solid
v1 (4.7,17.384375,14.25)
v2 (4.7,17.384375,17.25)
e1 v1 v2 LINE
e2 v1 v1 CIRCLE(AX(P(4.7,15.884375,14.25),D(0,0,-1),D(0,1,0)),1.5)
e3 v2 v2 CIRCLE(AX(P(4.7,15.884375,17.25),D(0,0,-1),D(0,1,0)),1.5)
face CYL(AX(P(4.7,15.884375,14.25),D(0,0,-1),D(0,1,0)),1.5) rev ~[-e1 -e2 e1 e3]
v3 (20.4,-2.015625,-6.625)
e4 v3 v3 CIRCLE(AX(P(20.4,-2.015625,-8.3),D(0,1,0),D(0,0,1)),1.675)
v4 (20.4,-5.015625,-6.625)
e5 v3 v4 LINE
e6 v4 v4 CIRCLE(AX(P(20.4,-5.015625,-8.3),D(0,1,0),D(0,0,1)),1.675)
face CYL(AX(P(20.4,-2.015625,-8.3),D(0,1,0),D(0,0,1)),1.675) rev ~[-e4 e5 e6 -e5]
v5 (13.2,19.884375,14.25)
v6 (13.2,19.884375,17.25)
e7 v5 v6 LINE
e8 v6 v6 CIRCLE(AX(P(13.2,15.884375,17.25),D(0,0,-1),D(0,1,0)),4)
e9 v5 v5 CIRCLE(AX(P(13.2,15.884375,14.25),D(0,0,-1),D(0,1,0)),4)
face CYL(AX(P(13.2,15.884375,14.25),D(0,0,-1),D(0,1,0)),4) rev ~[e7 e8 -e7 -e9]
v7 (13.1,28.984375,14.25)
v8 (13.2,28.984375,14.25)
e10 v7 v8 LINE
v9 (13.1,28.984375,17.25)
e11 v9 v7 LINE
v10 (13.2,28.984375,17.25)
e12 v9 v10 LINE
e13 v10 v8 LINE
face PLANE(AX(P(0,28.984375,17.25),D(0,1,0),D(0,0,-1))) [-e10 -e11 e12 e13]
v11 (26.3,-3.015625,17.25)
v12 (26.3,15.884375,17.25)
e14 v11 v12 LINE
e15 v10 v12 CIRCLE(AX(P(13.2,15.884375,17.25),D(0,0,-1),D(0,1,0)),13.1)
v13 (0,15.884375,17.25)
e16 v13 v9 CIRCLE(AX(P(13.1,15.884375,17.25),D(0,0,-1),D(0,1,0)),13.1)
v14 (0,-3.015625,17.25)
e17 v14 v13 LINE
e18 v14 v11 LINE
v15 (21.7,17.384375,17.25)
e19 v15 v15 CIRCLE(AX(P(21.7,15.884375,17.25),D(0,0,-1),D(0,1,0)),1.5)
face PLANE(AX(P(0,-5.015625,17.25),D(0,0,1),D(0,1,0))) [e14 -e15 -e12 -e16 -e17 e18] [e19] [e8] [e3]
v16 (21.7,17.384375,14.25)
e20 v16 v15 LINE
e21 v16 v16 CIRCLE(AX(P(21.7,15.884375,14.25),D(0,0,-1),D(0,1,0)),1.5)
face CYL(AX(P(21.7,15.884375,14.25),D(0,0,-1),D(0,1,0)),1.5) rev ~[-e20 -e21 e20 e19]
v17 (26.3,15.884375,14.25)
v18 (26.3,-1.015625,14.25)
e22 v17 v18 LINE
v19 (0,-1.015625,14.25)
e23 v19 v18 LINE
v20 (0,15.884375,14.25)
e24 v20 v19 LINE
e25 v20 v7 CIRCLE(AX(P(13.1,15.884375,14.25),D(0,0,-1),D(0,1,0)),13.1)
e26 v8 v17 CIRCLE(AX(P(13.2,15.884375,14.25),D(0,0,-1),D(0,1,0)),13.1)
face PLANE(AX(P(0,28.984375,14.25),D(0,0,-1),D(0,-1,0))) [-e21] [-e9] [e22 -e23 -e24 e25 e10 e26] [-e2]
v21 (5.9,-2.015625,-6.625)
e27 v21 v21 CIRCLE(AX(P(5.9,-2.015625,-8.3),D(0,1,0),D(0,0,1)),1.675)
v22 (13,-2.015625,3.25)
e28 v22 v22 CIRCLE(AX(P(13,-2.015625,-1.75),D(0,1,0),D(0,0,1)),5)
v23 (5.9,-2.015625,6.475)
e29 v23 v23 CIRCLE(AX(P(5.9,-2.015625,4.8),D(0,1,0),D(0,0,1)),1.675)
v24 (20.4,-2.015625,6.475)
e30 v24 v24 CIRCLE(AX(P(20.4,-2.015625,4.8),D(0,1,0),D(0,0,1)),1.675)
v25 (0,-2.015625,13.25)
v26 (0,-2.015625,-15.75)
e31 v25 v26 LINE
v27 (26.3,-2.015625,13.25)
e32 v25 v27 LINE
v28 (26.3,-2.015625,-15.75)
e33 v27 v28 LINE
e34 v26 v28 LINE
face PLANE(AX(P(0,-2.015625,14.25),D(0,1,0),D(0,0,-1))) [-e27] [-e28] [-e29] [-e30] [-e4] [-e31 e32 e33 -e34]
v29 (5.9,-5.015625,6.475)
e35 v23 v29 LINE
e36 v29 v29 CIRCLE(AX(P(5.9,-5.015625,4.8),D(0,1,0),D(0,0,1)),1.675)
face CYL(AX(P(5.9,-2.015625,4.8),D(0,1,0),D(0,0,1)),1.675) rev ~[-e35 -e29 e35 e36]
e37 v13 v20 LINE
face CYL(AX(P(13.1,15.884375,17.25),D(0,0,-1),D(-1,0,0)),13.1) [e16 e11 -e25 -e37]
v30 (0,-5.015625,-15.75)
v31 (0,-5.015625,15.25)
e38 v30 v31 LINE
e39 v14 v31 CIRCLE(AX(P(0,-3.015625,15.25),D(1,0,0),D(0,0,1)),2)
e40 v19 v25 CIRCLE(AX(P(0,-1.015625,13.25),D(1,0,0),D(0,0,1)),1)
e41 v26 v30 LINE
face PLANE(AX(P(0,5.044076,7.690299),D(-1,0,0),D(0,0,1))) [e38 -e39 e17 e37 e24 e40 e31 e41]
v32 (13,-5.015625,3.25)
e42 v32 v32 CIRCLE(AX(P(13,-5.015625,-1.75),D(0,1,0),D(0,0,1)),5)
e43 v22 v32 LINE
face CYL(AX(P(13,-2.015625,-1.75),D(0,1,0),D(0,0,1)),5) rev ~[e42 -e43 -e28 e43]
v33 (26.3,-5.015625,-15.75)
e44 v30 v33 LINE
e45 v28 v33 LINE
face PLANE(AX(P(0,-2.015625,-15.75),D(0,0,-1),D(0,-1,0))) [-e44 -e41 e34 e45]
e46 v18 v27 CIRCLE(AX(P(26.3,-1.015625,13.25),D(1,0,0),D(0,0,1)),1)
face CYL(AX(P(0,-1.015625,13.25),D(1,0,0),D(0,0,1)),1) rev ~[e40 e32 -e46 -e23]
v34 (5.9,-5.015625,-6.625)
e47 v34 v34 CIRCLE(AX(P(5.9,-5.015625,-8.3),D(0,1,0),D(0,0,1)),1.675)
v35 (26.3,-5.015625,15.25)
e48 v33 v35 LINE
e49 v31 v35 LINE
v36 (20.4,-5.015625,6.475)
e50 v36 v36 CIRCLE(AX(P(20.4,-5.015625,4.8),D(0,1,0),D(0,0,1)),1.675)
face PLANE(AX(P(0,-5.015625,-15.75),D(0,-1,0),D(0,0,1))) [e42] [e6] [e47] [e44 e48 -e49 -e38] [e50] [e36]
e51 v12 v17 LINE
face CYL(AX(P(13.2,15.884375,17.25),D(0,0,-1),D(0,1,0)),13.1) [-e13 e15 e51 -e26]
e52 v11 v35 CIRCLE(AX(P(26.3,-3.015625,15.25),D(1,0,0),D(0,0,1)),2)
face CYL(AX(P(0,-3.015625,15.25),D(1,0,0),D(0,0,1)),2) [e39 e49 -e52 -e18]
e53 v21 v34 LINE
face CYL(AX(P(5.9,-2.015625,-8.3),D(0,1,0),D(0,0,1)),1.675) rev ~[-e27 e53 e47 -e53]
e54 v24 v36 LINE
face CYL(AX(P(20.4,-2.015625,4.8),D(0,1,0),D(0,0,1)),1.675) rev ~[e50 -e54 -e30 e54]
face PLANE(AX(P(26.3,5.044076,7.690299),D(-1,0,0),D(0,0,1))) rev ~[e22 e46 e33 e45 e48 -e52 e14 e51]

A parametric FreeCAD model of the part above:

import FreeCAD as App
import Part
import Sketcher

V = App.Vector
Q = App.Units.Quantity


def edges_at(feature, points):
    """Names of the edges that pass closest to the given points."""
    edges = feature.Shape.Edges
    near = lambda p: min(range(len(edges)), key=lambda i: edges[i].distToShape(Part.Vertex(*p))[0])
    return sorted({f"Edge{near(p) + 1}" for p in points})

doc = App.newDocument("Part")
params = doc.addObject("Spreadsheet::Sheet", "Params")
for row, (alias, value) in enumerate([
    ("sketch1_width", "34 mm"),
    ("sketch1_width2", "3 mm"),
    ("sketch1_height", "33 mm"),
    ("pad1_length", "26.3 mm"),
    ("fillet_radius", "1 mm"),
    ("fillet2_radius", "2 mm"),
    ("fillet3_radius", "13.1 mm"),
    ("sketch2_diameter", "10 mm"),
    ("sketch2_diameter2", "3.35 mm"),
    ("sketch3_diameter", "8 mm"),
    ("sketch3_diameter2", "3 mm"),
], start=1):
    params.set(f"A{row}", alias)
    params.set(f"B{row}", "=" + value)
    params.setAlias(f"B{row}", alias)

body = doc.addObject("PartDesign::Body", "Body")

sketch1 = body.newObject("Sketcher::SketchObject", "Sketch")
sketch1.AttachmentSupport = (doc.getObject("YZ_Plane"), [""])
sketch1.MapMode = "FlatFace"
sketch1.addGeometry(Part.LineSegment(V(29, 14.2, 0), V(29, 17.2, 0)), False)
sketch1.addGeometry(Part.LineSegment(V(29, 17.2, 0), V(-5, 17.2, 0)), False)
sketch1.addGeometry(Part.LineSegment(V(-5, 17.2, 0), V(-5, -15.8, 0)), False)
sketch1.addGeometry(Part.LineSegment(V(-5, -15.8, 0), V(-2, -15.8, 0)), False)
sketch1.addGeometry(Part.LineSegment(V(-2, -15.8, 0), V(-2, 14.2, 0)), False)
sketch1.addGeometry(Part.LineSegment(V(-2, 14.2, 0), V(29, 14.2, 0)), False)
sketch1.addConstraint(Sketcher.Constraint("Coincident", 0, 2, 1, 1))
sketch1.addConstraint(Sketcher.Constraint("Coincident", 1, 2, 2, 1))
sketch1.addConstraint(Sketcher.Constraint("Coincident", 2, 2, 3, 1))
sketch1.addConstraint(Sketcher.Constraint("Coincident", 3, 2, 4, 1))
sketch1.addConstraint(Sketcher.Constraint("Coincident", 4, 2, 5, 1))
sketch1.addConstraint(Sketcher.Constraint("Coincident", 5, 2, 0, 1))
sketch1.addConstraint(Sketcher.Constraint("Vertical", 0))
sketch1.addConstraint(Sketcher.Constraint("Horizontal", 1))
sketch1.addConstraint(Sketcher.Constraint("Vertical", 2))
sketch1.addConstraint(Sketcher.Constraint("Horizontal", 3))
sketch1.addConstraint(Sketcher.Constraint("Vertical", 4))
sketch1.addConstraint(Sketcher.Constraint("Horizontal", 5))
sketch1.addConstraint(Sketcher.Constraint("Equal", 3, 0))
sketch1.addConstraint(Sketcher.Constraint("DistanceX", 1, 2, 1, 1, Q("34 mm")))
sketch1.addConstraint(Sketcher.Constraint("DistanceX", 3, 1, 3, 2, Q("3 mm")))
sketch1.addConstraint(Sketcher.Constraint("DistanceY", 2, 2, 2, 1, Q("33 mm")))
sketch1.addConstraint(Sketcher.Constraint("DistanceY", -1, 1, 0, 2, Q("17.25 mm")))
sketch1.addConstraint(Sketcher.Constraint("DistanceX", -1, 1, 0, 2, Q("28.984375 mm")))
sketch1.setExpression("Constraints[13]", "Params.sketch1_width")
sketch1.setExpression("Constraints[14]", "Params.sketch1_width2")
sketch1.setExpression("Constraints[15]", "Params.sketch1_height")
pad1 = body.newObject("PartDesign::Pad", "Pad")
pad1.Profile = sketch1
pad1.setExpression("Length", "Params.pad1_length")
doc.recompute()

fillet = body.newObject("PartDesign::Fillet", "Fillet")
fillet.Base = (pad1, edges_at(pad1, [(13.15, -2.016, 14.25)]))
fillet.setExpression("Radius", "Params.fillet_radius")
doc.recompute()

fillet2 = body.newObject("PartDesign::Fillet", "Fillet001")
fillet2.Base = (fillet, edges_at(fillet, [(13.15, -5.016, 17.25)]))
fillet2.setExpression("Radius", "Params.fillet2_radius")
doc.recompute()

fillet3 = body.newObject("PartDesign::Fillet", "Fillet002")
fillet3.Base = (fillet2, edges_at(fillet2, [(26.3, 28.984, 15.75), (0, 28.984, 15.75)]))
fillet3.setExpression("Radius", "Params.fillet3_radius")

sketch2 = body.newObject("Sketcher::SketchObject", "Sketch001")
sketch2.AttachmentSupport = (doc.getObject("XZ_Plane"), [""])
sketch2.MapMode = "FlatFace"
sketch2.AttachmentOffset = App.Placement(V(0, 0, 2.015625), App.Rotation())
sketch2.addGeometry(Part.Circle(V(13, -1.8, 0), V(0, 0, 1), 5), False)
sketch2.addGeometry(Part.Circle(V(5.9, -8.3, 0), V(0, 0, 1), 1.7), False)
sketch2.addGeometry(Part.Circle(V(20.4, -8.3, 0), V(0, 0, 1), 1.7), False)
sketch2.addGeometry(Part.Circle(V(20.4, 4.8, 0), V(0, 0, 1), 1.7), False)
sketch2.addGeometry(Part.Circle(V(5.9, 4.8, 0), V(0, 0, 1), 1.7), False)
sketch2.addConstraint(Sketcher.Constraint("Equal", 1, 2))
sketch2.addConstraint(Sketcher.Constraint("Equal", 2, 3))
sketch2.addConstraint(Sketcher.Constraint("Equal", 3, 4))
sketch2.addConstraint(Sketcher.Constraint("Horizontal", 1, 3, 2, 3))
sketch2.addConstraint(Sketcher.Constraint("Horizontal", 3, 3, 4, 3))
sketch2.addConstraint(Sketcher.Constraint("Vertical", 2, 3, 3, 3))
sketch2.addConstraint(Sketcher.Constraint("Vertical", 1, 3, 4, 3))
sketch2.addConstraint(Sketcher.Constraint("Diameter", 0, Q("10 mm")))
sketch2.addConstraint(Sketcher.Constraint("Diameter", 1, Q("3.35 mm")))
sketch2.addConstraint(Sketcher.Constraint("DistanceX", -1, 1, 0, 3, Q("13 mm")))
sketch2.addConstraint(Sketcher.Constraint("DistanceX", -1, 1, 1, 3, Q("5.9 mm")))
sketch2.addConstraint(Sketcher.Constraint("DistanceY", 1, 3, -1, 1, Q("8.3 mm")))
sketch2.addConstraint(Sketcher.Constraint("DistanceX", -1, 1, 2, 3, Q("20.4 mm")))
sketch2.addConstraint(Sketcher.Constraint("DistanceY", -1, 1, 3, 3, Q("4.8 mm")))
sketch2.addConstraint(Sketcher.Constraint("DistanceY", 0, 3, -1, 1, Q("1.75 mm")))
sketch2.setExpression("Constraints[7]", "Params.sketch2_diameter")
sketch2.setExpression("Constraints[8]", "Params.sketch2_diameter2")
pocket1 = body.newObject("PartDesign::Pocket", "Pocket")
pocket1.Profile = sketch2
pocket1.Type = "ThroughAll"
pocket1.Reversed = True

sketch3 = body.newObject("Sketcher::SketchObject", "Sketch002")
sketch3.AttachmentSupport = (doc.getObject("XY_Plane"), [""])
sketch3.MapMode = "FlatFace"
sketch3.AttachmentOffset = App.Placement(V(0, 0, 14.25), App.Rotation())
sketch3.addGeometry(Part.Circle(V(13.2, 15.9, 0), V(0, 0, 1), 4), False)
sketch3.addGeometry(Part.Circle(V(21.7, 15.9, 0), V(0, 0, 1), 1.5), False)
sketch3.addGeometry(Part.Circle(V(4.7, 15.9, 0), V(0, 0, 1), 1.5), False)
sketch3.addConstraint(Sketcher.Constraint("Equal", 1, 2))
sketch3.addConstraint(Sketcher.Constraint("Horizontal", 0, 3, 1, 3))
sketch3.addConstraint(Sketcher.Constraint("Horizontal", 1, 3, 2, 3))
sketch3.addConstraint(Sketcher.Constraint("Diameter", 0, Q("8 mm")))
sketch3.addConstraint(Sketcher.Constraint("Diameter", 1, Q("3 mm")))
sketch3.addConstraint(Sketcher.Constraint("DistanceX", 2, 3, 1, 3, Q("17 mm")))
sketch3.addConstraint(Sketcher.Constraint("DistanceX", -1, 1, 0, 3, Q("13.2 mm")))
sketch3.addConstraint(Sketcher.Constraint("DistanceX", -1, 1, 1, 3, Q("21.7 mm")))
sketch3.addConstraint(Sketcher.Constraint("DistanceY", -1, 1, 0, 3, Q("15.884375 mm")))
sketch3.setExpression("Constraints[3]", "Params.sketch3_diameter")
sketch3.setExpression("Constraints[4]", "Params.sketch3_diameter2")
pocket2 = body.newObject("PartDesign::Pocket", "Pocket001")
pocket2.Profile = sketch3
pocket2.Type = "ThroughAll"
pocket2.Reversed = True

doc.recompute()
